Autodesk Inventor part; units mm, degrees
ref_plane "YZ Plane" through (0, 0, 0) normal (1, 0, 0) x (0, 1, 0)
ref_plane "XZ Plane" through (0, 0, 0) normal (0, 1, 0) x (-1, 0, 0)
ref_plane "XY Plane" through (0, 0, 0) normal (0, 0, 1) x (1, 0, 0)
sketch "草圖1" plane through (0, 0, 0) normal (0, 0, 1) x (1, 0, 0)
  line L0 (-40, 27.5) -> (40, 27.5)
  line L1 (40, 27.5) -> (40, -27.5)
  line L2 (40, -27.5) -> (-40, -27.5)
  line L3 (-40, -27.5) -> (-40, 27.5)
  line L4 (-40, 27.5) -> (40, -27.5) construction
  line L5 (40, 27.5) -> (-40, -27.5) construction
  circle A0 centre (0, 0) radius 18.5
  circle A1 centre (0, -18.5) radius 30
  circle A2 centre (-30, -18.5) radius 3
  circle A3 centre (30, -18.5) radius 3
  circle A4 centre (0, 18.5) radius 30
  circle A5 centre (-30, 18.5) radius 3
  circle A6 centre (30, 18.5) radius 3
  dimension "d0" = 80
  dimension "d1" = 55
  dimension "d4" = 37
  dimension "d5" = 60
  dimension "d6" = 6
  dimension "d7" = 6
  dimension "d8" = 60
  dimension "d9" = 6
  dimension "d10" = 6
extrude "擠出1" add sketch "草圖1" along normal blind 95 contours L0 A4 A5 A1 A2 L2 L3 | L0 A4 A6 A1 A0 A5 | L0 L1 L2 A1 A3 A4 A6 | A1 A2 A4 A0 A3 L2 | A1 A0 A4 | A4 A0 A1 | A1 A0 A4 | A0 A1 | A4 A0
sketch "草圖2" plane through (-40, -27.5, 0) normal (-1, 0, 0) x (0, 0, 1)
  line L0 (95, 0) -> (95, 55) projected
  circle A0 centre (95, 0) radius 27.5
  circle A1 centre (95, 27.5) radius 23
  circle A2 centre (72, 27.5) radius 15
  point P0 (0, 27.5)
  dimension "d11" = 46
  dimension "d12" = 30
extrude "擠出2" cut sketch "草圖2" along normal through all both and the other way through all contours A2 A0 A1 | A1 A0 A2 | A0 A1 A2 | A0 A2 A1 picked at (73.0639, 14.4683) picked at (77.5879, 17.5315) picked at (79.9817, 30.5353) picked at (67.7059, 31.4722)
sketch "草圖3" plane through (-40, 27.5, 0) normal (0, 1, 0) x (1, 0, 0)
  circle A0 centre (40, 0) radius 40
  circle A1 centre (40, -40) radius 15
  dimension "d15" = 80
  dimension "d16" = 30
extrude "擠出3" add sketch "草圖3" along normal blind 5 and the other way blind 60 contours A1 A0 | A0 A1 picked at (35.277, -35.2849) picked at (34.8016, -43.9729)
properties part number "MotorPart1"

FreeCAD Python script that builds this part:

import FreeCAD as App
import Part
import Sketcher

V = App.Vector
Q = App.Units.Quantity


def add_polygon(sketch, points):
    """Adds a closed chain of lines whose ends are joined by coincident constraints."""
    first, n = sketch.GeometryCount, len(points)
    for a, b in zip(points, points[1:] + points[:1]):
        sketch.addGeometry(Part.LineSegment(App.Vector(*a, 0), App.Vector(*b, 0)), False)
    for i in range(n):
        sketch.addConstraint(Sketcher.Constraint("Coincident", first + i, 2, first + (i + 1) % n, 1))

doc = App.newDocument("Part")
params = doc.addObject("Spreadsheet::Sheet", "Params")
for row, (alias, value) in enumerate([
    ("sketch1_diameter", "6 mm"),
    ("sketch1_width", "80 mm"),
    ("sketch1_height", "55 mm"),
    ("pad1_length", "95 mm"),
    ("sketch2_diameter", "30 mm"),
    ("sketch3_diameter", "30 mm"),
    ("pad2_length", "5 mm"),
    ("pad2_length2", "60 mm"),
], start=1):
    params.set(f"A{row}", alias)
    params.set(f"B{row}", "=" + value)
    params.setAlias(f"B{row}", alias)

body = doc.addObject("PartDesign::Body", "Body")

sketch1 = body.newObject("Sketcher::SketchObject", "Sketch")
sketch1.AttachmentSupport = (doc.getObject("XY_Plane"), [""])
sketch1.MapMode = "FlatFace"
add_polygon(sketch1, [(-40, 27.5), (-40, -27.5), (40, -27.5), (40, 27.5)])
sketch1.addGeometry(Part.Circle(V(-30, 18.5, 0), V(0, 0, 1), 3), False)
sketch1.addGeometry(Part.Circle(V(-30, -18.5, 0), V(0, 0, 1), 3), False)
sketch1.addGeometry(Part.Circle(V(30, 18.5, 0), V(0, 0, 1), 3), False)
sketch1.addGeometry(Part.Circle(V(30, -18.5, 0), V(0, 0, 1), 3), False)
sketch1.addConstraint([
    Sketcher.Constraint("Vertical", 0),
    Sketcher.Constraint("Horizontal", 1),
    Sketcher.Constraint("Vertical", 2),
    Sketcher.Constraint("Horizontal", 3),
    Sketcher.Constraint("Equal", 4, 5),
    Sketcher.Constraint("Equal", 5, 6),
    Sketcher.Constraint("Equal", 6, 7),
    Sketcher.Constraint("Symmetric", 5, 3, 6, 3, -1, 1),
    Sketcher.Constraint("Symmetric", 4, 3, 7, 3, -1, 1),
    Sketcher.Constraint("Symmetric", 0, 2, 2, 2, -1, 1),
    Sketcher.Constraint("Symmetric", 4, 3, 6, 3, -2),
    Sketcher.Constraint("Diameter", 4, Q("6 mm")),
    Sketcher.Constraint("DistanceX", 1, 1, 1, 2, Q("80 mm")),
    Sketcher.Constraint("DistanceY", 0, 2, 0, 1, Q("55 mm")),
    Sketcher.Constraint("DistanceY", 5, 3, 4, 3, Q("37 mm")),
    Sketcher.Constraint("DistanceX", 4, 3, 6, 3, Q("60 mm")),
])
sketch1.setExpression("Constraints[15]", "Params.sketch1_diameter")
sketch1.setExpression("Constraints[16]", "Params.sketch1_width")
sketch1.setExpression("Constraints[17]", "Params.sketch1_height")
pad1 = body.newObject("PartDesign::Pad", "Pad")
pad1.Profile = sketch1
pad1.setExpression("Length", "Params.pad1_length")

sketch2 = body.newObject("Sketcher::SketchObject", "Sketch001")
sketch2.AttachmentSupport = (doc.getObject("YZ_Plane"), [""])
sketch2.MapMode = "FlatFace"
sketch2.AttachmentOffset = App.Placement(V(0, 0, -40), App.Rotation())
sketch2.addGeometry(Part.Circle(V(0, 72, 0), V(0, 0, 1), 15), False)
sketch2.addConstraint([
    Sketcher.Constraint("PointOnObject", 0, 3, -2),
    Sketcher.Constraint("Diameter", 0, Q("30 mm")),
    Sketcher.Constraint("DistanceY", -1, 1, 0, 3, Q("72 mm")),
])
sketch2.setExpression("Constraints[1]", "Params.sketch2_diameter")
pocket1 = body.newObject("PartDesign::Pocket", "Pocket")
pocket1.Profile = sketch2
pocket1.Type = "ThroughAll"
pocket1.Midplane = True

sketch3 = body.newObject("Sketcher::SketchObject", "Sketch002")
sketch3.AttachmentSupport = (doc.getObject("XZ_Plane"), [""])
sketch3.MapMode = "FlatFace"
sketch3.AttachmentOffset = App.Placement(V(0, 0, -27.5), App.Rotation())
sketch3.addGeometry(Part.Circle(V(0, 40, 0), V(0, 0, 1), 15), False)
sketch3.addConstraint([
    Sketcher.Constraint("PointOnObject", 0, 3, -2),
    Sketcher.Constraint("Diameter", 0, Q("30 mm")),
    Sketcher.Constraint("DistanceY", -1, 1, 0, 3, Q("40 mm")),
])
sketch3.setExpression("Constraints[1]", "Params.sketch3_diameter")
pad2 = body.newObject("PartDesign::Pad", "Pad001")
pad2.Profile = sketch3
pad2.Type = "TwoLengths"
pad2.setExpression("Length", "Params.pad2_length")
pad2.setExpression("Length2", "Params.pad2_length2")
pad2.Reversed = True

doc.recompute()
